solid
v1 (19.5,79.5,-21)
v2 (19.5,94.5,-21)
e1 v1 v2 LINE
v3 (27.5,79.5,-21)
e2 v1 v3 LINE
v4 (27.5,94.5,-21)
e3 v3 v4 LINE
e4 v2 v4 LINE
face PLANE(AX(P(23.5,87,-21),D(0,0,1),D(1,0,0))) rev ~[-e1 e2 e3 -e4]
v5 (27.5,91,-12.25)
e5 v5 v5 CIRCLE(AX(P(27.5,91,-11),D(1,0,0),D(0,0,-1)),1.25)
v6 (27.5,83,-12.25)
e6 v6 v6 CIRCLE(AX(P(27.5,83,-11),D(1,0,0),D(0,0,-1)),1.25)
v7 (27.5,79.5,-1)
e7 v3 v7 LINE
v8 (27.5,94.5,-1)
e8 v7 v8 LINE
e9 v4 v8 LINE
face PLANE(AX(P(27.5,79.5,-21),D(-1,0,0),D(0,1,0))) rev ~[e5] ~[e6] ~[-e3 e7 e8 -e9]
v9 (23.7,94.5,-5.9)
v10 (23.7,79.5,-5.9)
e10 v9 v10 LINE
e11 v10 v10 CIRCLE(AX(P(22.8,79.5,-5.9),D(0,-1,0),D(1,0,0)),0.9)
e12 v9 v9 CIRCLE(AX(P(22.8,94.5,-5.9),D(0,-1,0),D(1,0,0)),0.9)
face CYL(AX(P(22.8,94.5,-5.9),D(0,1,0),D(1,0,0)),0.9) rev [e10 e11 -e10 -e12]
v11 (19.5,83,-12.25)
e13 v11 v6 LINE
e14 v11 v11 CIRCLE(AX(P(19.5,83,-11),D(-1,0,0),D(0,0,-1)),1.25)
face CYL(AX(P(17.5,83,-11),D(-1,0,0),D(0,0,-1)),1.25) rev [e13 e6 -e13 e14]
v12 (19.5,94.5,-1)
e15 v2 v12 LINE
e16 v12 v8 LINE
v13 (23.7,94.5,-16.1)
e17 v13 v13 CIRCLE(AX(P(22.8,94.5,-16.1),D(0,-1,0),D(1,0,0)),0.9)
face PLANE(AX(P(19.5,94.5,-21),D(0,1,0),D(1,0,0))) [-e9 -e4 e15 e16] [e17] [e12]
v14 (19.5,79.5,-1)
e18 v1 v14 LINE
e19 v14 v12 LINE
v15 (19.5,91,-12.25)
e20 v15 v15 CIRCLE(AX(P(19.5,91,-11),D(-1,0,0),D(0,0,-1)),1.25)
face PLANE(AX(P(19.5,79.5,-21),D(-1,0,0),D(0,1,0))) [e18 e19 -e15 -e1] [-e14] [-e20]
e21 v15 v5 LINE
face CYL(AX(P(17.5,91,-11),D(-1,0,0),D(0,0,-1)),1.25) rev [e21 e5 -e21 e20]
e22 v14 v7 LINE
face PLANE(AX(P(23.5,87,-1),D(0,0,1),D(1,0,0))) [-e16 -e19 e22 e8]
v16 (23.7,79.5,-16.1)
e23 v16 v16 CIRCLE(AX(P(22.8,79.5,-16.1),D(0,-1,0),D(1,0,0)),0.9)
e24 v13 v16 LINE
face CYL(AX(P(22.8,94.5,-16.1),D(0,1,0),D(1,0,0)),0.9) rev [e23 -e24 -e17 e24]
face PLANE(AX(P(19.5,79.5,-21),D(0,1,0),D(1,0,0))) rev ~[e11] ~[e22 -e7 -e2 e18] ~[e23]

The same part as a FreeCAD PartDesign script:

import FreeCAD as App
import Part
import Sketcher


def add_polygon(sketch, points):
    """Adds a closed chain of lines whose ends are joined by coincident constraints."""
    first, n = sketch.GeometryCount, len(points)
    for a, b in zip(points, points[1:] + points[:1]):
        sketch.addGeometry(Part.LineSegment(App.Vector(*a, 0), App.Vector(*b, 0)), False)
    for i in range(n):
        sketch.addConstraint(Sketcher.Constraint("Coincident", first + i, 2, first + (i + 1) % n, 1))

doc = App.newDocument("Part")
body = doc.addObject("PartDesign::Body", "Body")

# Sketch on XY plane
sketch1 = body.newObject("Sketcher::SketchObject", "Sketch")
sketch1.AttachmentSupport = (doc.getObject("XY_Plane"), [""])
sketch1.MapMode = "FlatFace"
sketch1.addGeometry(Part.Circle(App.Vector(0, 0, 0), App.Vector(0, 0, 1), 0.9), False)
sketch1.addConstraint(Sketcher.Constraint("Coincident", 0, 3, -1, 1))
sketch1.addConstraint(Sketcher.Constraint("Diameter", 0, 1.8))
pad1 = body.newObject("PartDesign::Pad", "Pad")
pad1.Profile = sketch1
pad1.Length = 15
body2 = doc.addObject("PartDesign::Body", "Body001")
doc.recompute()

body.Placement = App.Placement(App.Vector(0, 0, 0), App.Rotation(App.Vector(1, 0, 0), 90))
boolean = body2.newObject("PartDesign::Boolean", "Boolean")
boolean.Type = "Fuse"
boolean.addObjects([body])
body3 = doc.addObject("PartDesign::Body", "Body002")
doc.recompute()

body2.Placement = App.Placement(App.Vector(27, 85, -10.2), App.Rotation(App.Vector(0, 0, 1), 0))
boolean2 = body3.newObject("PartDesign::Boolean", "Boolean001")
boolean2.Type = "Fuse"
boolean2.addObjects([body2])
body4 = doc.addObject("PartDesign::Body", "Body003")

# Sketch on XY plane
sketch2 = body4.newObject("Sketcher::SketchObject", "Sketch001")
sketch2.AttachmentSupport = (doc.getObject("XY_Plane003"), [""])
sketch2.MapMode = "FlatFace"
sketch2.addGeometry(Part.Circle(App.Vector(0, 0, 0), App.Vector(0, 0, 1), 0.9), False)
sketch2.addConstraint(Sketcher.Constraint("Coincident", 0, 3, -1, 1))
sketch2.addConstraint(Sketcher.Constraint("Diameter", 0, 1.8))
pad2 = body4.newObject("PartDesign::Pad", "Pad001")
pad2.Profile = sketch2
pad2.Length = 15
body5 = doc.addObject("PartDesign::Body", "Body004")
doc.recompute()

body4.Placement = App.Placement(App.Vector(0, 0, 0), App.Rotation(App.Vector(1, 0, 0), 90))
boolean3 = body5.newObject("PartDesign::Boolean", "Boolean002")
boolean3.Type = "Fuse"
boolean3.addObjects([body4])
body6 = doc.addObject("PartDesign::Body", "Body005")
body6.AllowCompound = True
doc.recompute()

body5.Placement = App.Placement(App.Vector(27, 85, 0), App.Rotation(App.Vector(0, 0, 1), 0))
boolean4 = body6.newObject("PartDesign::Boolean", "Boolean003")
boolean4.Type = "Fuse"
boolean4.addObjects([body5])
doc.recompute()

boolean5 = body6.newObject("PartDesign::Boolean", "Boolean004")
boolean5.Type = "Fuse"
boolean5.addObjects([body3])
body7 = doc.addObject("PartDesign::Body", "Body006")
body7.AllowCompound = True
doc.recompute()

body6.Placement = App.Placement(App.Vector(-4.2, 9.5, -5.9), App.Rotation(App.Vector(0, 0, 1), 0))
boolean6 = body7.newObject("PartDesign::Boolean", "Boolean005")
boolean6.Type = "Fuse"
boolean6.addObjects([body6])
body8 = doc.addObject("PartDesign::Body", "Body007")

# Sketch on XY plane
sketch3 = body8.newObject("Sketcher::SketchObject", "Sketch002")
sketch3.AttachmentSupport = (doc.getObject("XY_Plane007"), [""])
sketch3.MapMode = "FlatFace"
sketch3.addGeometry(Part.Circle(App.Vector(0, 0, 0), App.Vector(0, 0, 1), 1.2), False)
sketch3.addConstraint(Sketcher.Constraint("Coincident", 0, 3, -1, 1))
sketch3.addConstraint(Sketcher.Constraint("Diameter", 0, 2.5))
pad3 = body8.newObject("PartDesign::Pad", "Pad002")
pad3.Profile = sketch3
pad3.Length = 10
body9 = doc.addObject("PartDesign::Body", "Body008")
doc.recompute()

body8.Placement = App.Placement(App.Vector(0, 0, 0), App.Rotation(App.Vector(0, 1, 0), 90))
boolean7 = body9.newObject("PartDesign::Boolean", "Boolean006")
boolean7.Type = "Fuse"
boolean7.addObjects([body8])
body10 = doc.addObject("PartDesign::Body", "Body009")
doc.recompute()

body9.Placement = App.Placement(App.Vector(13.5, 83, -11), App.Rotation(App.Vector(0, 0, 1), 0))
boolean8 = body10.newObject("PartDesign::Boolean", "Boolean007")
boolean8.Type = "Fuse"
boolean8.addObjects([body9])
body11 = doc.addObject("PartDesign::Body", "Body010")

# Sketch on XY plane
sketch4 = body11.newObject("Sketcher::SketchObject", "Sketch003")
sketch4.AttachmentSupport = (doc.getObject("XY_Plane010"), [""])
sketch4.MapMode = "FlatFace"
sketch4.addGeometry(Part.Circle(App.Vector(0, 0, 0), App.Vector(0, 0, 1), 1.2), False)
sketch4.addConstraint(Sketcher.Constraint("Coincident", 0, 3, -1, 1))
sketch4.addConstraint(Sketcher.Constraint("Diameter", 0, 2.5))
pad4 = body11.newObject("PartDesign::Pad", "Pad003")
pad4.Profile = sketch4
pad4.Length = 10
body12 = doc.addObject("PartDesign::Body", "Body011")
doc.recompute()

body11.Placement = App.Placement(App.Vector(0, 0, 0), App.Rotation(App.Vector(0, 1, 0), 90))
boolean9 = body12.newObject("PartDesign::Boolean", "Boolean008")
boolean9.Type = "Fuse"
boolean9.addObjects([body11])
body13 = doc.addObject("PartDesign::Body", "Body012")
body13.AllowCompound = True
doc.recompute()

body12.Placement = App.Placement(App.Vector(13.5, 91, -11), App.Rotation(App.Vector(0, 0, 1), 0))
boolean10 = body13.newObject("PartDesign::Boolean", "Boolean009")
boolean10.Type = "Fuse"
boolean10.addObjects([body12])
doc.recompute()

boolean11 = body13.newObject("PartDesign::Boolean", "Boolean010")
boolean11.Type = "Fuse"
boolean11.addObjects([body10])
body14 = doc.addObject("PartDesign::Body", "Body013")
body14.AllowCompound = True
doc.recompute()

body13.Placement = App.Placement(App.Vector(4, 0, 0), App.Rotation(App.Vector(0, 0, 1), 0))
boolean12 = body14.newObject("PartDesign::Boolean", "Boolean011")
boolean12.Type = "Fuse"
boolean12.addObjects([body13])
body15 = doc.addObject("PartDesign::Body", "Body014")

# Sketch on XY plane
sketch5 = body15.newObject("Sketcher::SketchObject", "Sketch004")
sketch5.AttachmentSupport = (doc.getObject("XY_Plane014"), [""])
sketch5.MapMode = "FlatFace"
sketch5.AttachmentOffset = App.Placement(App.Vector(0, 0, -21), App.Rotation())
add_polygon(sketch5, [(20, 94), (20, 80), (28, 80), (28, 94)])  # lines 0-3
sketch5.addConstraint(Sketcher.Constraint("Vertical", 0))
sketch5.addConstraint(Sketcher.Constraint("Horizontal", 1))
sketch5.addConstraint(Sketcher.Constraint("Vertical", 2))
sketch5.addConstraint(Sketcher.Constraint("Horizontal", 3))
sketch5.addConstraint(Sketcher.Constraint("DistanceX", 1, 1, 1, 2, 8.0))
sketch5.addConstraint(Sketcher.Constraint("DistanceY", 0, 2, 0, 1, 15.0))
sketch5.addConstraint(Sketcher.Constraint("DistanceX", -1, 1, 0, 2, 19.5))
sketch5.addConstraint(Sketcher.Constraint("DistanceY", -1, 1, 0, 2, 79.5))
pad5 = body15.newObject("PartDesign::Pad", "Pad004")
pad5.Profile = sketch5
pad5.Length = 20
doc.recompute()

boolean13 = body15.newObject("PartDesign::Boolean", "Boolean012")
boolean13.Type = "Cut"
boolean13.addObjects([body14])
doc.recompute()

boolean14 = body15.newObject("PartDesign::Boolean", "Boolean013")
boolean14.Type = "Cut"
boolean14.addObjects([body7])

doc.recompute()
